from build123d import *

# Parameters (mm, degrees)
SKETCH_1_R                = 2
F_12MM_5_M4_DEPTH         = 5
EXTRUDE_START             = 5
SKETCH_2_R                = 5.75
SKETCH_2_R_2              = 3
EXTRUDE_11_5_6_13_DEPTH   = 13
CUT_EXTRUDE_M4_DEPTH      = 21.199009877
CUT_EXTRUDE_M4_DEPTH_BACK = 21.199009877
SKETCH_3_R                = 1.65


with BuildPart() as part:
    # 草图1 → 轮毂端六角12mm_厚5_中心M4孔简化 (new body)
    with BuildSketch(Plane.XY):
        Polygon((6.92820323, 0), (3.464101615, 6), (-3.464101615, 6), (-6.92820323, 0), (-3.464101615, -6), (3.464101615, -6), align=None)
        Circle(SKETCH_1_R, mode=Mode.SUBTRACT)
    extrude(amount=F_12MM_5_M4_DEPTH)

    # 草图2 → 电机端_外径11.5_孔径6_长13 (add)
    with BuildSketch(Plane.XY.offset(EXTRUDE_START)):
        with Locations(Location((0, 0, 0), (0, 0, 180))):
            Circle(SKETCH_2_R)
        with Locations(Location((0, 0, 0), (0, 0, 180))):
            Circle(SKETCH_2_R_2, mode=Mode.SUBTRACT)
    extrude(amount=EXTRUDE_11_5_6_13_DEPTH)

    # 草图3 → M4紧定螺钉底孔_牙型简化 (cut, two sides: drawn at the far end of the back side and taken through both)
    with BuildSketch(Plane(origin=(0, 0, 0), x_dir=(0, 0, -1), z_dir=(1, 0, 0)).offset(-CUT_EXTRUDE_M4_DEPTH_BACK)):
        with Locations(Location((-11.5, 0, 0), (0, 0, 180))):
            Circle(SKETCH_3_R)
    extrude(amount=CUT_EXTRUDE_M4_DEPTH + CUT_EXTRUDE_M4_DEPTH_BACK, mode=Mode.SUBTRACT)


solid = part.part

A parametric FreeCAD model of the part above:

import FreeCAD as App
import Part
import Sketcher
Q = App.Units.Quantity


def add_polygon(sketch, points):
    """Adds a closed chain of lines whose ends are joined by coincident constraints."""
    first, n = sketch.GeometryCount, len(points)
    for a, b in zip(points, points[1:] + points[:1]):
        sketch.addGeometry(Part.LineSegment(App.Vector(*a, 0), App.Vector(*b, 0)), False)
    for i in range(n):
        sketch.addConstraint(Sketcher.Constraint("Coincident", first + i, 2, first + (i + 1) % n, 1))

doc = App.newDocument("Part")
body = doc.addObject("PartDesign::Body", "Body")

# Sketch on XY plane
sketch1 = body.newObject("Sketcher::SketchObject", "Sketch")
sketch1.AttachmentSupport = (doc.getObject("XY_Plane"), [""])
sketch1.MapMode = "FlatFace"
add_polygon(sketch1, [(6.9, 0), (3.5, 6), (-3.5, 6), (-6.9, 0), (-3.5, -6), (3.5, -6)])  # lines 0-5
sketch1.addGeometry(Part.Circle(App.Vector(0, 0, 0), App.Vector(0, 0, 1), 2), False)  # 6
sketch1.addConstraint(Sketcher.Constraint("Horizontal", 1))
sketch1.addConstraint(Sketcher.Constraint("Horizontal", 4))
sketch1.addConstraint(Sketcher.Constraint("Coincident", 6, 3, -1, 1))
sketch1.addConstraint(Sketcher.Constraint("Symmetric", 0, 2, 3, 2, -1, 1))
sketch1.addConstraint(Sketcher.Constraint("Symmetric", 2, 2, 5, 2, -1, 1))
sketch1.addConstraint(Sketcher.Constraint("PointOnObject", 2, 2, -1))
sketch1.addConstraint(Sketcher.Constraint("Parallel", 2, 5))
sketch1.addConstraint(Sketcher.Constraint("Vertical", 1, 2, 3, 2))
sketch1.addConstraint(Sketcher.Constraint("Diameter", 6, 4.0))
sketch1.addConstraint(Sketcher.Constraint("Angle", 0, Q("120 deg")))
sketch1.addConstraint(Sketcher.Constraint("DistanceY", -1, 1, 0, 2, 6.0))
sketch1.addConstraint(Sketcher.Constraint("DistanceX", -1, 1, 0, 2, 3.464102))
pad1 = body.newObject("PartDesign::Pad", "Pad")
pad1.Profile = sketch1
pad1.Length = 5

# Sketch on XY plane
sketch2 = body.newObject("Sketcher::SketchObject", "Sketch001")
sketch2.AttachmentSupport = (doc.getObject("XY_Plane"), [""])
sketch2.MapMode = "FlatFace"
sketch2.AttachmentOffset = App.Placement(App.Vector(0, 0, 5), App.Rotation())
sketch2.addGeometry(Part.Circle(App.Vector(0, 0, 0), App.Vector(0, 0, 1), 5.8), False)
sketch2.addGeometry(Part.Circle(App.Vector(0, 0, 0), App.Vector(0, 0, 1), 3), False)
sketch2.addConstraint(Sketcher.Constraint("Coincident", 0, 3, -1, 1))
sketch2.addConstraint(Sketcher.Constraint("Coincident", 1, 3, -1, 1))
sketch2.addConstraint(Sketcher.Constraint("Diameter", 1, 6.0))
sketch2.addConstraint(Sketcher.Constraint("Diameter", 0, 11.5))
pad2 = body.newObject("PartDesign::Pad", "Pad001")
pad2.Profile = sketch2
pad2.Length = 13

# Sketch on YZ plane
sketch3 = body.newObject("Sketcher::SketchObject", "Sketch002")
sketch3.AttachmentSupport = (doc.getObject("YZ_Plane"), [""])
sketch3.MapMode = "FlatFace"
sketch3.addGeometry(Part.Circle(App.Vector(0, 11.5, 0), App.Vector(0, 0, 1), 1.6), False)
sketch3.addConstraint(Sketcher.Constraint("PointOnObject", 0, 3, -2))
sketch3.addConstraint(Sketcher.Constraint("Diameter", 0, 3.3))
sketch3.addConstraint(Sketcher.Constraint("DistanceY", -1, 1, 0, 3, 11.5))
pocket1 = body.newObject("PartDesign::Pocket", "Pocket")
pocket1.Profile = sketch3
pocket1.Type = "ThroughAll"
pocket1.Midplane = True

doc.recompute()
